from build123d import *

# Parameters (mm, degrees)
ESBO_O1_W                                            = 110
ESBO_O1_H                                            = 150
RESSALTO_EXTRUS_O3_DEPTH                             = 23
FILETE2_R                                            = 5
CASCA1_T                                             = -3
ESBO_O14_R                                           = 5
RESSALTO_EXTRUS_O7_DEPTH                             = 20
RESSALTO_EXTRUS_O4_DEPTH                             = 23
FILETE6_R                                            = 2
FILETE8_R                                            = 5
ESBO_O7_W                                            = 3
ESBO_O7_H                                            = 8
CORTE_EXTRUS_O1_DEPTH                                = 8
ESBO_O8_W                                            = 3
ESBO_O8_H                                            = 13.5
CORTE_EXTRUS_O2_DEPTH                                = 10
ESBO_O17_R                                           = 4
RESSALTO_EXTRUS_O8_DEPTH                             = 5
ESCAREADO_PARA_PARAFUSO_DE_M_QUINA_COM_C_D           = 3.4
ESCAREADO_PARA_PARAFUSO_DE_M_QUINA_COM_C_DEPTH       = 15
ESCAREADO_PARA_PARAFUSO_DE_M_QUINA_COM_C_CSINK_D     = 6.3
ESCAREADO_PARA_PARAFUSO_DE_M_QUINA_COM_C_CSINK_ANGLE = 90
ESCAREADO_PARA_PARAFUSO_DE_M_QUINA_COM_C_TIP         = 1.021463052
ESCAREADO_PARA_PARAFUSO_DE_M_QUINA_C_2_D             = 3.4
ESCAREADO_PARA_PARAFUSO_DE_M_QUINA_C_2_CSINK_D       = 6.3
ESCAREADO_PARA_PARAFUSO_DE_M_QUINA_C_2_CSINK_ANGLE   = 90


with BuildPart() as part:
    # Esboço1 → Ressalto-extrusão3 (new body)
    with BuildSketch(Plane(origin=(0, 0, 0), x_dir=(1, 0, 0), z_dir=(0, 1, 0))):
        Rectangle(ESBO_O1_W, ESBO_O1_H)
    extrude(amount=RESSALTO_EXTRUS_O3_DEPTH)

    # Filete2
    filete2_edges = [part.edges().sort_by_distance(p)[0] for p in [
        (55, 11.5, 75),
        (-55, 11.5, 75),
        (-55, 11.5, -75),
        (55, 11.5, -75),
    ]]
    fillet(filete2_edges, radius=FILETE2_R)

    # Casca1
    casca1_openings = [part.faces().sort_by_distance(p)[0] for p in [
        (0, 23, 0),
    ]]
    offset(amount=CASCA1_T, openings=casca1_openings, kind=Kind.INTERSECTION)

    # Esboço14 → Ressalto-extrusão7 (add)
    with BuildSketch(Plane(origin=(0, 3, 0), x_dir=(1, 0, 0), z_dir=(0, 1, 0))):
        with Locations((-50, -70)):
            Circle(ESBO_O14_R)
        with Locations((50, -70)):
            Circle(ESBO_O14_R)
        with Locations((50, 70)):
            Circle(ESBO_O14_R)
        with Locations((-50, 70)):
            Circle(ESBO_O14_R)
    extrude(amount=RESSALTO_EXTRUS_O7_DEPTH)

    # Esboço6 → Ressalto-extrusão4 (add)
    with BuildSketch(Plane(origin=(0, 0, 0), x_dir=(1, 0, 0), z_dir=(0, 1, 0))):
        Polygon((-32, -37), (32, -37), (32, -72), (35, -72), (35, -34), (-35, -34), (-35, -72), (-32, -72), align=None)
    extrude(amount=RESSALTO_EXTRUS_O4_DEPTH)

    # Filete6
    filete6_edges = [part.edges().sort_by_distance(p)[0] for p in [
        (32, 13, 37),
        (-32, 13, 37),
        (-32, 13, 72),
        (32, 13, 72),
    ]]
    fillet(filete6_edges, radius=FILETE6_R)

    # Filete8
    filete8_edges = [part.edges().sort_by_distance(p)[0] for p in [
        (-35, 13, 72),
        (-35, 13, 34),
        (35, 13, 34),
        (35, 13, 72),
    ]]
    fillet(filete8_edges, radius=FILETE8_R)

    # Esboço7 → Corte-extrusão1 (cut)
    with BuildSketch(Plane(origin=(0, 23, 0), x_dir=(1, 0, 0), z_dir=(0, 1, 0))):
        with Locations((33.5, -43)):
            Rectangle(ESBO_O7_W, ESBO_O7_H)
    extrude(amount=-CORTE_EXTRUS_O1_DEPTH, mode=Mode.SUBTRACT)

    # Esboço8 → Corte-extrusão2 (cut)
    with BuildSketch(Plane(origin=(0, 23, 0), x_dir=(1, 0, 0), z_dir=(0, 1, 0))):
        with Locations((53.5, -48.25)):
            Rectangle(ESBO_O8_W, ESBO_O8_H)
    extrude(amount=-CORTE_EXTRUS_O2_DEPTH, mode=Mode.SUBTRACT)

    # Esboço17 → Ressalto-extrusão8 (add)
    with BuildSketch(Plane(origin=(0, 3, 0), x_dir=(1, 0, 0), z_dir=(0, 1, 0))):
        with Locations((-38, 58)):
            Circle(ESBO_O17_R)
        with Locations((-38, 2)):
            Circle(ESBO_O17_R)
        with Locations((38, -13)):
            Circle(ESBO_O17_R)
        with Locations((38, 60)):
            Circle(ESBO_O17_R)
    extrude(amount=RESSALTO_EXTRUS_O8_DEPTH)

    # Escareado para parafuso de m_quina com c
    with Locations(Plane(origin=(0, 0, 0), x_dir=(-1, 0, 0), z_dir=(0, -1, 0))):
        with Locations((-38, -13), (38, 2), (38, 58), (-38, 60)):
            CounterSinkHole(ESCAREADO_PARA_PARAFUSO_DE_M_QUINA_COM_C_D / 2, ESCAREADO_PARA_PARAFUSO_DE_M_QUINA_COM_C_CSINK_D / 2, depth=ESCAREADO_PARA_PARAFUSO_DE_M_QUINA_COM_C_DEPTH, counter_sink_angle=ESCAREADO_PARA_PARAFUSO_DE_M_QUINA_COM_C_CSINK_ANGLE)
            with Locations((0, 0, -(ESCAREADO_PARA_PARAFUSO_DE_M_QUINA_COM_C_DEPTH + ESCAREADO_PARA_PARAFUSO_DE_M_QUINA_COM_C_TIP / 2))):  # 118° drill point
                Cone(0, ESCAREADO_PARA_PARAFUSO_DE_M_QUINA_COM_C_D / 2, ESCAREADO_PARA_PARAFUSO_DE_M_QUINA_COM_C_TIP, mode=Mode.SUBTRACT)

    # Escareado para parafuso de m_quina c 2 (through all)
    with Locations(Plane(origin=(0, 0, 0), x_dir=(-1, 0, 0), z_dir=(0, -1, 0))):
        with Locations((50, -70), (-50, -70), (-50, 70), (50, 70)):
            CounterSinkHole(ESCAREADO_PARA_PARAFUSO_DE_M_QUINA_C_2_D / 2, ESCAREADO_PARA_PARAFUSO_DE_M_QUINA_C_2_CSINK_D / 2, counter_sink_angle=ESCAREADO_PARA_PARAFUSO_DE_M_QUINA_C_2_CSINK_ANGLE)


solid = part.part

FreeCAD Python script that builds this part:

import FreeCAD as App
import Part
import Sketcher
from FreeCAD import Vector
Q = App.Units.Quantity


def edges_at(feature, points):
    """Names of the edges that pass closest to the given points."""
    edges = feature.Shape.Edges
    near = lambda p: min(range(len(edges)), key=lambda i: edges[i].distToShape(Part.Vertex(*p))[0])
    return sorted({f"Edge{near(p) + 1}" for p in points})


def faces_at(feature, points):
    """Names of the faces that lie closest to the given points."""
    faces = feature.Shape.Faces
    near = lambda p: min(range(len(faces)), key=lambda i: faces[i].distToShape(Part.Vertex(*p))[0])
    return sorted({f"Face{near(p) + 1}" for p in points})

doc = App.newDocument("Part")
body = doc.addObject("PartDesign::Body", "Body")

# Sketch on XZ plane
sketch1 = doc.addObject("Sketcher::SketchObject", "Sketch")
body.addObject(sketch1)
sketch1.AttachmentSupport = (doc.XZ_Plane, [""])
sketch1.MapMode = "FlatFace"
sketch1.addGeometry([
    Part.LineSegment(Vector(-55, -75, 0), Vector(-55, 75, 0)),
    Part.LineSegment(Vector(-55, 75, 0), Vector(55, 75, 0)),
    Part.LineSegment(Vector(55, 75, 0), Vector(55, -75, 0)),
    Part.LineSegment(Vector(55, -75, 0), Vector(-55, -75, 0)),
], False)
sketch1.addConstraint([
    Sketcher.Constraint("Coincident", 0, 2, 1, 1),
    Sketcher.Constraint("Coincident", 1, 2, 2, 1),
    Sketcher.Constraint("Coincident", 2, 2, 3, 1),
    Sketcher.Constraint("Coincident", 3, 2, 0, 1),
    Sketcher.Constraint("Vertical", 0),
    Sketcher.Constraint("Horizontal", 1),
    Sketcher.Constraint("Vertical", 2),
    Sketcher.Constraint("Horizontal", 3),
    Sketcher.Constraint("Symmetric", 0, 2, 2, 2, -1, 1),
    Sketcher.Constraint("DistanceX", 1, 1, 1, 2, Q("110 mm")),
    Sketcher.Constraint("DistanceY", 0, 1, 0, 2, Q("150 mm")),
])
pad1 = doc.addObject("PartDesign::Pad", "Pad")
body.addObject(pad1)
pad1.Profile = sketch1
pad1.Length = 23
pad1.Reversed = True
doc.recompute()

fillet = doc.addObject("PartDesign::Fillet", "Fillet")
body.addObject(fillet)
fillet.Base = (pad1, edges_at(pad1, [
    (55, 11.5, 75),
    (-55, 11.5, 75),
    (-55, 11.5, -75),
    (55, 11.5, -75),
]))
fillet.Radius = 5
doc.recompute()

thickness = doc.addObject("PartDesign::Thickness", "Thickness")
body.addObject(thickness)
thickness.Base = (fillet, faces_at(fillet, [(0, 23, 0)]))
thickness.Value = 3
thickness.Reversed = True
thickness.Join = "Intersection"

# Sketch on XZ plane
sketch2 = doc.addObject("Sketcher::SketchObject", "Sketch001")
body.addObject(sketch2)
sketch2.AttachmentSupport = (doc.XZ_Plane, [""])
sketch2.MapMode = "FlatFace"
sketch2.AttachmentOffset = App.Placement(Vector(0, 0, -3), App.Rotation())
sketch2.addGeometry([
    Part.Circle(Vector(-50, 70, 0), Vector(0, 0, 1), 5),
    Part.Circle(Vector(50, 70, 0), Vector(0, 0, 1), 5),
    Part.Circle(Vector(50, -70, 0), Vector(0, 0, 1), 5),
    Part.Circle(Vector(-50, -70, 0), Vector(0, 0, 1), 5),
], False)
sketch2.addConstraint([
    Sketcher.Constraint("Equal", 0, 1),
    Sketcher.Constraint("Equal", 1, 2),
    Sketcher.Constraint("Equal", 2, 3),
    Sketcher.Constraint("Symmetric", 0, 3, 2, 3, -1, 1),
    Sketcher.Constraint("Symmetric", 1, 3, 3, 3, -1, 1),
    Sketcher.Constraint("Symmetric", 0, 3, 1, 3, -2),
    Sketcher.Constraint("Diameter", 0, Q("10 mm")),
    Sketcher.Constraint("DistanceX", 0, 3, -1, 1, Q("50 mm")),
    Sketcher.Constraint("DistanceY", -1, 1, 0, 3, Q("70 mm")),
])
pad2 = doc.addObject("PartDesign::Pad", "Pad001")
body.addObject(pad2)
pad2.Profile = sketch2
pad2.Length = 20
pad2.Reversed = True

# Sketch on XZ plane
sketch3 = doc.addObject("Sketcher::SketchObject", "Sketch002")
body.addObject(sketch3)
sketch3.AttachmentSupport = (doc.XZ_Plane, [""])
sketch3.MapMode = "FlatFace"
sketch3.addGeometry([
    Part.LineSegment(Vector(-32, 37, 0), Vector(32, 37, 0)),  # 0
    Part.LineSegment(Vector(32, 37, 0), Vector(32, 72, 0)),  # 1
    Part.LineSegment(Vector(32, 72, 0), Vector(35, 72, 0)),  # 2
    Part.LineSegment(Vector(35, 72, 0), Vector(35, 34, 0)),  # 3
    Part.LineSegment(Vector(35, 34, 0), Vector(-35, 34, 0)),  # 4
    Part.LineSegment(Vector(-35, 34, 0), Vector(-35, 72, 0)),  # 5
    Part.LineSegment(Vector(-35, 72, 0), Vector(-32, 72, 0)),  # 6
    Part.LineSegment(Vector(-32, 72, 0), Vector(-32, 37, 0)),  # 7
], False)
sketch3.addConstraint([
    Sketcher.Constraint("Coincident", 0, 2, 1, 1),
    Sketcher.Constraint("Coincident", 1, 2, 2, 1),
    Sketcher.Constraint("Coincident", 2, 2, 3, 1),
    Sketcher.Constraint("Coincident", 3, 2, 4, 1),
    Sketcher.Constraint("Coincident", 4, 2, 5, 1),
    Sketcher.Constraint("Coincident", 5, 2, 6, 1),
    Sketcher.Constraint("Coincident", 6, 2, 7, 1),
    Sketcher.Constraint("Coincident", 7, 2, 0, 1),
    Sketcher.Constraint("Horizontal", 0),
    Sketcher.Constraint("Vertical", 1),
    Sketcher.Constraint("Horizontal", 2),
    Sketcher.Constraint("Vertical", 3),
    Sketcher.Constraint("Horizontal", 4),
    Sketcher.Constraint("Vertical", 5),
    Sketcher.Constraint("Horizontal", 6),
    Sketcher.Constraint("Vertical", 7),
    Sketcher.Constraint("Symmetric", 2, 2, 5, 2, -2),
    Sketcher.Constraint("Equal", 2, 6),
    Sketcher.Constraint("DistanceX", 0, 1, 0, 2, Q("64 mm")),
    Sketcher.Constraint("DistanceX", 2, 1, 2, 2, Q("3 mm")),
    Sketcher.Constraint("DistanceY", 1, 1, 1, 2, Q("35 mm")),
    Sketcher.Constraint("DistanceY", 3, 2, 3, 1, Q("38 mm")),
    Sketcher.Constraint("DistanceY", -1, 1, 0, 2, Q("37 mm")),
])
pad3 = doc.addObject("PartDesign::Pad", "Pad002")
body.addObject(pad3)
pad3.Profile = sketch3
pad3.Length = 23
pad3.Reversed = True
doc.recompute()

fillet2 = doc.addObject("PartDesign::Fillet", "Fillet001")
body.addObject(fillet2)
fillet2.Base = (pad3, edges_at(pad3, [
    (32, 13, 37),
    (-32, 13, 37),
    (-32, 13, 72),
    (32, 13, 72),
]))
fillet2.Radius = 2
doc.recompute()

fillet3 = doc.addObject("PartDesign::Fillet", "Fillet002")
body.addObject(fillet3)
fillet3.Base = (fillet2, edges_at(fillet2, [
    (-35, 13, 72),
    (-35, 13, 34),
    (35, 13, 34),
    (35, 13, 72),
]))
fillet3.Radius = 5

# Sketch on XZ plane
sketch4 = doc.addObject("Sketcher::SketchObject", "Sketch003")
body.addObject(sketch4)
sketch4.AttachmentSupport = (doc.XZ_Plane, [""])
sketch4.MapMode = "FlatFace"
sketch4.AttachmentOffset = App.Placement(Vector(0, 0, -23), App.Rotation())
sketch4.addGeometry([
    Part.LineSegment(Vector(32, 39, 0), Vector(32, 47, 0)),
    Part.LineSegment(Vector(32, 47, 0), Vector(35, 47, 0)),
    Part.LineSegment(Vector(35, 47, 0), Vector(35, 39, 0)),
    Part.LineSegment(Vector(35, 39, 0), Vector(32, 39, 0)),
], False)
sketch4.addConstraint([
    Sketcher.Constraint("Coincident", 0, 2, 1, 1),
    Sketcher.Constraint("Coincident", 1, 2, 2, 1),
    Sketcher.Constraint("Coincident", 2, 2, 3, 1),
    Sketcher.Constraint("Coincident", 3, 2, 0, 1),
    Sketcher.Constraint("Vertical", 0),
    Sketcher.Constraint("Horizontal", 1),
    Sketcher.Constraint("Vertical", 2),
    Sketcher.Constraint("Horizontal", 3),
    Sketcher.Constraint("DistanceX", 1, 1, 1, 2, Q("3 mm")),
    Sketcher.Constraint("DistanceY", 0, 1, 0, 2, Q("8 mm")),
    Sketcher.Constraint("DistanceX", -1, 1, 0, 2, Q("32 mm")),
    Sketcher.Constraint("DistanceY", -1, 1, 0, 2, Q("47 mm")),
])
pocket1 = doc.addObject("PartDesign::Pocket", "Pocket")
body.addObject(pocket1)
pocket1.Profile = sketch4
pocket1.Length = 8
pocket1.Reversed = True

# Sketch on XZ plane
sketch5 = doc.addObject("Sketcher::SketchObject", "Sketch004")
body.addObject(sketch5)
sketch5.AttachmentSupport = (doc.XZ_Plane, [""])
sketch5.MapMode = "FlatFace"
sketch5.AttachmentOffset = App.Placement(Vector(0, 0, -23), App.Rotation())
sketch5.addGeometry([
    Part.LineSegment(Vector(52, 41.5, 0), Vector(52, 55, 0)),
    Part.LineSegment(Vector(52, 55, 0), Vector(55, 55, 0)),
    Part.LineSegment(Vector(55, 55, 0), Vector(55, 41.5, 0)),
    Part.LineSegment(Vector(55, 41.5, 0), Vector(52, 41.5, 0)),
], False)
sketch5.addConstraint([
    Sketcher.Constraint("Coincident", 0, 2, 1, 1),
    Sketcher.Constraint("Coincident", 1, 2, 2, 1),
    Sketcher.Constraint("Coincident", 2, 2, 3, 1),
    Sketcher.Constraint("Coincident", 3, 2, 0, 1),
    Sketcher.Constraint("Vertical", 0),
    Sketcher.Constraint("Horizontal", 1),
    Sketcher.Constraint("Vertical", 2),
    Sketcher.Constraint("Horizontal", 3),
    Sketcher.Constraint("DistanceX", 1, 1, 1, 2, Q("3 mm")),
    Sketcher.Constraint("DistanceY", 0, 1, 0, 2, Q("13.5 mm")),
    Sketcher.Constraint("DistanceX", -1, 1, 0, 2, Q("52 mm")),
    Sketcher.Constraint("DistanceY", -1, 1, 0, 2, Q("55 mm")),
])
pocket2 = doc.addObject("PartDesign::Pocket", "Pocket001")
body.addObject(pocket2)
pocket2.Profile = sketch5
pocket2.Length = 10
pocket2.Reversed = True

# Sketch on XZ plane
sketch6 = doc.addObject("Sketcher::SketchObject", "Sketch005")
body.addObject(sketch6)
sketch6.AttachmentSupport = (doc.XZ_Plane, [""])
sketch6.MapMode = "FlatFace"
sketch6.AttachmentOffset = App.Placement(Vector(0, 0, -3), App.Rotation())
sketch6.addGeometry([
    Part.Circle(Vector(-38, -58, 0), Vector(0, 0, 1), 4),
    Part.Circle(Vector(-38, -2, 0), Vector(0, 0, 1), 4),
    Part.Circle(Vector(38, 13, 0), Vector(0, 0, 1), 4),
    Part.Circle(Vector(38, -60, 0), Vector(0, 0, 1), 4),
], False)
sketch6.addConstraint([
    Sketcher.Constraint("Equal", 0, 1),
    Sketcher.Constraint("Equal", 1, 2),
    Sketcher.Constraint("Equal", 2, 3),
    Sketcher.Constraint("Vertical", 0, 3, 1, 3),
    Sketcher.Constraint("Vertical", 2, 3, 3, 3),
    Sketcher.Constraint("Diameter", 0, Q("8 mm")),
    Sketcher.Constraint("DistanceX", 0, 3, -1, 1, Q("38 mm")),
    Sketcher.Constraint("DistanceY", 0, 3, -1, 1, Q("58 mm")),
    Sketcher.Constraint("DistanceY", 1, 3, -1, 1, Q("2 mm")),
    Sketcher.Constraint("DistanceX", -1, 1, 2, 3, Q("38 mm")),
    Sketcher.Constraint("DistanceY", -1, 1, 2, 3, Q("13 mm")),
    Sketcher.Constraint("DistanceY", 3, 3, -1, 1, Q("60 mm")),
])
pad4 = doc.addObject("PartDesign::Pad", "Pad003")
body.addObject(pad4)
pad4.Profile = sketch6
pad4.Length = 5
pad4.Reversed = True

# Sketch on XZ plane
sketch7 = doc.addObject("Sketcher::SketchObject", "Sketch006")
body.addObject(sketch7)
sketch7.AttachmentSupport = (doc.XZ_Plane, [""])
sketch7.MapMode = "FlatFace"
sketch7.addGeometry([
    Part.Circle(Vector(38, 13, 0), Vector(0, 0, 1), 1.7),
    Part.Circle(Vector(-38, -2, 0), Vector(0, 0, 1), 1.7),
    Part.Circle(Vector(-38, -58, 0), Vector(0, 0, 1), 1.7),
    Part.Circle(Vector(38, -60, 0), Vector(0, 0, 1), 1.7),
], False)
sketch7.addConstraint([
    Sketcher.Constraint("Equal", 0, 1),
    Sketcher.Constraint("Equal", 1, 2),
    Sketcher.Constraint("Equal", 2, 3),
    Sketcher.Constraint("Vertical", 1, 3, 2, 3),
    Sketcher.Constraint("Vertical", 0, 3, 3, 3),
    Sketcher.Constraint("Diameter", 0, Q("3.4 mm")),
    Sketcher.Constraint("DistanceX", -1, 1, 0, 3, Q("38 mm")),
    Sketcher.Constraint("DistanceY", -1, 1, 0, 3, Q("13 mm")),
    Sketcher.Constraint("DistanceX", 1, 3, -1, 1, Q("38 mm")),
    Sketcher.Constraint("DistanceY", 1, 3, -1, 1, Q("2 mm")),
    Sketcher.Constraint("DistanceY", 2, 3, -1, 1, Q("58 mm")),
    Sketcher.Constraint("DistanceY", 3, 3, -1, 1, Q("60 mm")),
])
doc.recompute()
hole = doc.addObject("PartDesign::Hole", "Hole")
body.addObject(hole)
hole.Profile = sketch7
hole.ThreadType = "None"
hole.Diameter = 3.4
hole.DepthType = "Dimension"
hole.Depth = 15
hole.DrillPoint = "Angled"
hole.DrillPointAngle = 118
hole.HoleCutType = "Countersink"
hole.HoleCutDiameter = 6.3
hole.HoleCutCountersinkAngle = 90

# Sketch on XZ plane
sketch8 = doc.addObject("Sketcher::SketchObject", "Sketch007")
body.addObject(sketch8)
sketch8.AttachmentSupport = (doc.XZ_Plane, [""])
sketch8.MapMode = "FlatFace"
sketch8.addGeometry([
    Part.Circle(Vector(-50, 70, 0), Vector(0, 0, 1), 1.7),
    Part.Circle(Vector(50, 70, 0), Vector(0, 0, 1), 1.7),
    Part.Circle(Vector(50, -70, 0), Vector(0, 0, 1), 1.7),
    Part.Circle(Vector(-50, -70, 0), Vector(0, 0, 1), 1.7),
], False)
sketch8.addConstraint([
    Sketcher.Constraint("Equal", 0, 1),
    Sketcher.Constraint("Equal", 1, 2),
    Sketcher.Constraint("Equal", 2, 3),
    Sketcher.Constraint("Symmetric", 0, 3, 2, 3, -1, 1),
    Sketcher.Constraint("Symmetric", 1, 3, 3, 3, -1, 1),
    Sketcher.Constraint("Symmetric", 0, 3, 1, 3, -2),
    Sketcher.Constraint("Diameter", 0, Q("3.4 mm")),
    Sketcher.Constraint("DistanceX", 0, 3, -1, 1, Q("50 mm")),
    Sketcher.Constraint("DistanceY", -1, 1, 0, 3, Q("70 mm")),
])
doc.recompute()
hole2 = doc.addObject("PartDesign::Hole", "Hole001")
body.addObject(hole2)
hole2.Profile = sketch8
hole2.ThreadType = "None"
hole2.Diameter = 3.4
hole2.DepthType = "ThroughAll"
hole2.HoleCutType = "Countersink"
hole2.HoleCutDiameter = 6.3
hole2.HoleCutCountersinkAngle = 90

doc.recompute()
